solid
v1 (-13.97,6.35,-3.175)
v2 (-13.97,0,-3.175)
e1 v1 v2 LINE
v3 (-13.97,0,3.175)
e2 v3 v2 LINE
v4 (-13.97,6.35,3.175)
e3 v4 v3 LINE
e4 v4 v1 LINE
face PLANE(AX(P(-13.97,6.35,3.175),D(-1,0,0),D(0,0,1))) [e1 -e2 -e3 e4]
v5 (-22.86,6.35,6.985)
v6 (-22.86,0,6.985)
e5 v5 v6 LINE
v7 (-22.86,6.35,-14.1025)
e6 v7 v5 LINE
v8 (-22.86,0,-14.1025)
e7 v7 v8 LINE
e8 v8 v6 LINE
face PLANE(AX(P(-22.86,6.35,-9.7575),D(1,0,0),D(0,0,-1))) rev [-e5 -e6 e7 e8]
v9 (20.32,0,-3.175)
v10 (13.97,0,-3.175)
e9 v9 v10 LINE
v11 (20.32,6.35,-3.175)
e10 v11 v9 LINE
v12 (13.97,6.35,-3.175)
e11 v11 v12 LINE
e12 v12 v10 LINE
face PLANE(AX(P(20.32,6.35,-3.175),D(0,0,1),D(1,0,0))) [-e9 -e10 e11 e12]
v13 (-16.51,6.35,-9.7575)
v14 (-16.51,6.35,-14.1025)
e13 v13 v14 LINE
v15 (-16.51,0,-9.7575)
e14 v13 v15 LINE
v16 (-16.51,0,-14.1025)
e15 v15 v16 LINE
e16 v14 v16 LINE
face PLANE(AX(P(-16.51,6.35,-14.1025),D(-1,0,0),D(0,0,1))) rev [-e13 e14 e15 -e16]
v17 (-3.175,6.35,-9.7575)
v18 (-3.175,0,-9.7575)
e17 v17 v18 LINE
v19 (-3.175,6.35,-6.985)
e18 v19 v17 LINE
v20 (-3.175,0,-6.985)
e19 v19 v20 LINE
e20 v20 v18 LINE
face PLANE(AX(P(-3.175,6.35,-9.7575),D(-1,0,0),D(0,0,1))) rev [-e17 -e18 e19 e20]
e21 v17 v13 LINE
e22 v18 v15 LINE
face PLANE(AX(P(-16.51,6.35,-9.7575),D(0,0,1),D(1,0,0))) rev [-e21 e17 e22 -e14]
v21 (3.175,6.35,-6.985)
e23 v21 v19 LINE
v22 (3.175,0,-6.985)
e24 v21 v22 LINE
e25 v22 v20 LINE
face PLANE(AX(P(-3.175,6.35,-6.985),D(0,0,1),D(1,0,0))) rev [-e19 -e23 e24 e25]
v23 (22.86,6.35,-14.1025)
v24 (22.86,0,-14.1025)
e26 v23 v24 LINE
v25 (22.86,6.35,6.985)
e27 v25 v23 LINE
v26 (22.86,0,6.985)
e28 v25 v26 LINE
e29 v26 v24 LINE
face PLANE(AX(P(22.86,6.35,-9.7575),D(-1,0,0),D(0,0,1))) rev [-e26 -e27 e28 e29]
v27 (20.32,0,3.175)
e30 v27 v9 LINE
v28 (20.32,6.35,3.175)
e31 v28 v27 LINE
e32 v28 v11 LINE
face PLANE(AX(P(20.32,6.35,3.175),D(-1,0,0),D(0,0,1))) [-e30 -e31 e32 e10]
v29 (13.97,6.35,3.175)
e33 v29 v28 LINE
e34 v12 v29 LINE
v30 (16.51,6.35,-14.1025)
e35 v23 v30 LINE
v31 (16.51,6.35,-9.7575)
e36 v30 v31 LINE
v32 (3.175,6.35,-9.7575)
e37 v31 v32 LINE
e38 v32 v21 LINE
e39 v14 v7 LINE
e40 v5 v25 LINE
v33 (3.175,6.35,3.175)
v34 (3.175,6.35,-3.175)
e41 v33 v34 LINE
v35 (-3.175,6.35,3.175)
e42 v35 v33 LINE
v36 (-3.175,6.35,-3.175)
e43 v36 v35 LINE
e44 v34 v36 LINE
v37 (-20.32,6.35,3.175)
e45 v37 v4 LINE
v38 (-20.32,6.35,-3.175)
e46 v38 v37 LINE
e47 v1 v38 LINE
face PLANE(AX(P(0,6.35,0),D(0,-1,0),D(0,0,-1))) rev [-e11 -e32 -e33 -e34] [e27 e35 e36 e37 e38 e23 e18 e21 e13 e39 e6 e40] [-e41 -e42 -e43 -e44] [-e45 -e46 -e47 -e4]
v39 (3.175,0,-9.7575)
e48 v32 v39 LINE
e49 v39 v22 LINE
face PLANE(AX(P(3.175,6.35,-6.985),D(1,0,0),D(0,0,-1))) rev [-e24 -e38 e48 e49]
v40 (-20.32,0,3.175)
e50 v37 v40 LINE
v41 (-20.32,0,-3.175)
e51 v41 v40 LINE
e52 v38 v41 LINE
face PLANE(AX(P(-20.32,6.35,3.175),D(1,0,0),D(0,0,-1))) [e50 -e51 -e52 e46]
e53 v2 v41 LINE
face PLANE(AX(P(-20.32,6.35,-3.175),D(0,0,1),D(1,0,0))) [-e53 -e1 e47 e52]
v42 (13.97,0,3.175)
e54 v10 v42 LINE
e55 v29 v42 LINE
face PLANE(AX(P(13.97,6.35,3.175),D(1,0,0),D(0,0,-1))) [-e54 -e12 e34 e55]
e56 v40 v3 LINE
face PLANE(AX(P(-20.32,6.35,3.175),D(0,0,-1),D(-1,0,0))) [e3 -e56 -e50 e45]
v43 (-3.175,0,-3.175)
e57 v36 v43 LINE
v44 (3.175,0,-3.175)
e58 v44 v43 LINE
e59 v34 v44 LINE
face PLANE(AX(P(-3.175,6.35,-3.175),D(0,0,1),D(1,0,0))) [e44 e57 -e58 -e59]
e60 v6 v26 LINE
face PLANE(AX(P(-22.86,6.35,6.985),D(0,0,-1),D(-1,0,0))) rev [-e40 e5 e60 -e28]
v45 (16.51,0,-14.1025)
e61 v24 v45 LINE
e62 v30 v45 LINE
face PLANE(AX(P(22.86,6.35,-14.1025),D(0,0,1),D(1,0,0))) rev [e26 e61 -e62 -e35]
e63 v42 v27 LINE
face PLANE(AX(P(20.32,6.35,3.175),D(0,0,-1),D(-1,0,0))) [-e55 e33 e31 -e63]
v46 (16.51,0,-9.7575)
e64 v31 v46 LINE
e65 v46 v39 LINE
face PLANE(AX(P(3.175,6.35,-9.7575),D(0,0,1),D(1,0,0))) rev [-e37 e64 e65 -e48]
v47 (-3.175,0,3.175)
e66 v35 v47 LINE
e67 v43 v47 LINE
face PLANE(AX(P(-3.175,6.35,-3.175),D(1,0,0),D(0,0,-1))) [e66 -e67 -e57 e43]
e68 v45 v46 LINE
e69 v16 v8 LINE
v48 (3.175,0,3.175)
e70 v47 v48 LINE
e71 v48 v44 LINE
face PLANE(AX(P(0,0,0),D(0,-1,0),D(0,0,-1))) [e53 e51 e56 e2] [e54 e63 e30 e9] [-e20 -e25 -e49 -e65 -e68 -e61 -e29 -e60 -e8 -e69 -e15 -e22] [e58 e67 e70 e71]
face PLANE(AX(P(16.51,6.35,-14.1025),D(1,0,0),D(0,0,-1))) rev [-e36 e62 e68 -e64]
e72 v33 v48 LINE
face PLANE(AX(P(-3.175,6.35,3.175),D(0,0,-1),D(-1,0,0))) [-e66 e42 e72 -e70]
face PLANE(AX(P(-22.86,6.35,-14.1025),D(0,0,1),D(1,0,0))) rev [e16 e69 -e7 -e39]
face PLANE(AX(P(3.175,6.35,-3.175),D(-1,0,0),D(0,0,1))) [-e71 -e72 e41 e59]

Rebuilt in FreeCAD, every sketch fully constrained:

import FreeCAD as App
import Part
import Sketcher

V = App.Vector
Q = App.Units.Quantity


def add_polygon(sketch, points):
    """Adds a closed chain of lines whose ends are joined by coincident constraints."""
    first, n = sketch.GeometryCount, len(points)
    for a, b in zip(points, points[1:] + points[:1]):
        sketch.addGeometry(Part.LineSegment(App.Vector(*a, 0), App.Vector(*b, 0)), False)
    for i in range(n):
        sketch.addConstraint(Sketcher.Constraint("Coincident", first + i, 2, first + (i + 1) % n, 1))

doc = App.newDocument("Part")
body = doc.addObject("PartDesign::Body", "Body")

# Sketch on XZ plane
sketch1 = body.newObject("Sketcher::SketchObject", "Sketch")
sketch1.AttachmentSupport = (doc.getObject("XZ_Plane"), [""])
sketch1.MapMode = "FlatFace"
add_polygon(sketch1, [(-22.86, 6.985), (22.86, 6.985), (22.86, -14.1025), (16.51, -14.1025), (16.51, -9.7575), (3.175, -9.7575), (3.175, -6.985), (-3.175, -6.985), (-3.175, -9.7575), (-16.51, -9.7575), (-16.51, -14.1025), (-22.86, -14.1025)])  # lines 0-11
add_polygon(sketch1, [(-13.97, 3.175), (-20.32, 3.175), (-20.32, -3.175), (-13.97, -3.175)])  # lines 12-15
add_polygon(sketch1, [(3.175, 3.175), (-3.175, 3.175), (-3.175, -3.175), (3.175, -3.175)])  # lines 16-19
add_polygon(sketch1, [(20.32, 3.175), (13.97, 3.175), (13.97, -3.175), (20.32, -3.175)])  # lines 20-23
sketch1.addConstraint(Sketcher.Constraint("Horizontal", 0))
sketch1.addConstraint(Sketcher.Constraint("Vertical", 1))
sketch1.addConstraint(Sketcher.Constraint("Horizontal", 2))
sketch1.addConstraint(Sketcher.Constraint("Vertical", 3))
sketch1.addConstraint(Sketcher.Constraint("Horizontal", 4))
sketch1.addConstraint(Sketcher.Constraint("Vertical", 5))
sketch1.addConstraint(Sketcher.Constraint("Horizontal", 6))
sketch1.addConstraint(Sketcher.Constraint("Vertical", 7))
sketch1.addConstraint(Sketcher.Constraint("Horizontal", 8))
sketch1.addConstraint(Sketcher.Constraint("Vertical", 9))
sketch1.addConstraint(Sketcher.Constraint("Horizontal", 10))
sketch1.addConstraint(Sketcher.Constraint("Vertical", 11))
sketch1.addConstraint(Sketcher.Constraint("Horizontal", 12))
sketch1.addConstraint(Sketcher.Constraint("Vertical", 13))
sketch1.addConstraint(Sketcher.Constraint("Horizontal", 14))
sketch1.addConstraint(Sketcher.Constraint("Vertical", 15))
sketch1.addConstraint(Sketcher.Constraint("Horizontal", 16))
sketch1.addConstraint(Sketcher.Constraint("Vertical", 17))
sketch1.addConstraint(Sketcher.Constraint("Horizontal", 18))
sketch1.addConstraint(Sketcher.Constraint("Vertical", 19))
sketch1.addConstraint(Sketcher.Constraint("Horizontal", 20))
sketch1.addConstraint(Sketcher.Constraint("Vertical", 21))
sketch1.addConstraint(Sketcher.Constraint("Horizontal", 22))
sketch1.addConstraint(Sketcher.Constraint("Vertical", 23))
sketch1.addConstraint(Sketcher.Constraint("Symmetric", 16, 2, 18, 2, -1, 1))
sketch1.addConstraint(Sketcher.Constraint("Symmetric", 14, 2, 20, 2, -1, 1))
sketch1.addConstraint(Sketcher.Constraint("Symmetric", 12, 2, 22, 2, -1, 1))
sketch1.addConstraint(Sketcher.Constraint("Symmetric", 4, 2, 7, 2, -2))
sketch1.addConstraint(Sketcher.Constraint("Symmetric", 2, 2, 9, 2, -2))
sketch1.addConstraint(Sketcher.Constraint("Horizontal", 15, 2, 16, 2))
sketch1.addConstraint(Sketcher.Constraint("Horizontal", 14, 2, 17, 2))
sketch1.addConstraint(Sketcher.Constraint("Vertical", 7, 2, 16, 2))
sketch1.addConstraint(Sketcher.Constraint("Equal", 2, 6))
sketch1.addConstraint(Sketcher.Constraint("Equal", 6, 10))
sketch1.addConstraint(Sketcher.Constraint("Equal", 10, 12))
sketch1.addConstraint(Sketcher.Constraint("Equal", 22, 13))
sketch1.addConstraint(Sketcher.Constraint("DistanceX", 0, 1, 0, 2, Q("1.8 in")))
sketch1.addConstraint(Sketcher.Constraint("DistanceX", 2, 2, 2, 1, Q("0.25 in")))
sketch1.addConstraint(Sketcher.Constraint("DistanceX", 12, 2, -1, 1, Q("0.8 in")))
sketch1.addConstraint(Sketcher.Constraint("DistanceY", 6, 2, 12, 2, Q("0.4 in")))
sketch1.addConstraint(Sketcher.Constraint("DistanceY", 13, 2, 11, 2, Q("0.4 in")))
sketch1.addConstraint(Sketcher.Constraint("DistanceY", 1, 2, 1, 1, Q("21.0875 mm")))
sketch1.addConstraint(Sketcher.Constraint("DistanceY", 3, 1, 3, 2, Q("4.345 mm")))
pad1 = body.newObject("PartDesign::Pad", "Pad")
pad1.Profile = sketch1
pad1.Length = Q("0.25 in")
pad1.Reversed = True

doc.recompute()
